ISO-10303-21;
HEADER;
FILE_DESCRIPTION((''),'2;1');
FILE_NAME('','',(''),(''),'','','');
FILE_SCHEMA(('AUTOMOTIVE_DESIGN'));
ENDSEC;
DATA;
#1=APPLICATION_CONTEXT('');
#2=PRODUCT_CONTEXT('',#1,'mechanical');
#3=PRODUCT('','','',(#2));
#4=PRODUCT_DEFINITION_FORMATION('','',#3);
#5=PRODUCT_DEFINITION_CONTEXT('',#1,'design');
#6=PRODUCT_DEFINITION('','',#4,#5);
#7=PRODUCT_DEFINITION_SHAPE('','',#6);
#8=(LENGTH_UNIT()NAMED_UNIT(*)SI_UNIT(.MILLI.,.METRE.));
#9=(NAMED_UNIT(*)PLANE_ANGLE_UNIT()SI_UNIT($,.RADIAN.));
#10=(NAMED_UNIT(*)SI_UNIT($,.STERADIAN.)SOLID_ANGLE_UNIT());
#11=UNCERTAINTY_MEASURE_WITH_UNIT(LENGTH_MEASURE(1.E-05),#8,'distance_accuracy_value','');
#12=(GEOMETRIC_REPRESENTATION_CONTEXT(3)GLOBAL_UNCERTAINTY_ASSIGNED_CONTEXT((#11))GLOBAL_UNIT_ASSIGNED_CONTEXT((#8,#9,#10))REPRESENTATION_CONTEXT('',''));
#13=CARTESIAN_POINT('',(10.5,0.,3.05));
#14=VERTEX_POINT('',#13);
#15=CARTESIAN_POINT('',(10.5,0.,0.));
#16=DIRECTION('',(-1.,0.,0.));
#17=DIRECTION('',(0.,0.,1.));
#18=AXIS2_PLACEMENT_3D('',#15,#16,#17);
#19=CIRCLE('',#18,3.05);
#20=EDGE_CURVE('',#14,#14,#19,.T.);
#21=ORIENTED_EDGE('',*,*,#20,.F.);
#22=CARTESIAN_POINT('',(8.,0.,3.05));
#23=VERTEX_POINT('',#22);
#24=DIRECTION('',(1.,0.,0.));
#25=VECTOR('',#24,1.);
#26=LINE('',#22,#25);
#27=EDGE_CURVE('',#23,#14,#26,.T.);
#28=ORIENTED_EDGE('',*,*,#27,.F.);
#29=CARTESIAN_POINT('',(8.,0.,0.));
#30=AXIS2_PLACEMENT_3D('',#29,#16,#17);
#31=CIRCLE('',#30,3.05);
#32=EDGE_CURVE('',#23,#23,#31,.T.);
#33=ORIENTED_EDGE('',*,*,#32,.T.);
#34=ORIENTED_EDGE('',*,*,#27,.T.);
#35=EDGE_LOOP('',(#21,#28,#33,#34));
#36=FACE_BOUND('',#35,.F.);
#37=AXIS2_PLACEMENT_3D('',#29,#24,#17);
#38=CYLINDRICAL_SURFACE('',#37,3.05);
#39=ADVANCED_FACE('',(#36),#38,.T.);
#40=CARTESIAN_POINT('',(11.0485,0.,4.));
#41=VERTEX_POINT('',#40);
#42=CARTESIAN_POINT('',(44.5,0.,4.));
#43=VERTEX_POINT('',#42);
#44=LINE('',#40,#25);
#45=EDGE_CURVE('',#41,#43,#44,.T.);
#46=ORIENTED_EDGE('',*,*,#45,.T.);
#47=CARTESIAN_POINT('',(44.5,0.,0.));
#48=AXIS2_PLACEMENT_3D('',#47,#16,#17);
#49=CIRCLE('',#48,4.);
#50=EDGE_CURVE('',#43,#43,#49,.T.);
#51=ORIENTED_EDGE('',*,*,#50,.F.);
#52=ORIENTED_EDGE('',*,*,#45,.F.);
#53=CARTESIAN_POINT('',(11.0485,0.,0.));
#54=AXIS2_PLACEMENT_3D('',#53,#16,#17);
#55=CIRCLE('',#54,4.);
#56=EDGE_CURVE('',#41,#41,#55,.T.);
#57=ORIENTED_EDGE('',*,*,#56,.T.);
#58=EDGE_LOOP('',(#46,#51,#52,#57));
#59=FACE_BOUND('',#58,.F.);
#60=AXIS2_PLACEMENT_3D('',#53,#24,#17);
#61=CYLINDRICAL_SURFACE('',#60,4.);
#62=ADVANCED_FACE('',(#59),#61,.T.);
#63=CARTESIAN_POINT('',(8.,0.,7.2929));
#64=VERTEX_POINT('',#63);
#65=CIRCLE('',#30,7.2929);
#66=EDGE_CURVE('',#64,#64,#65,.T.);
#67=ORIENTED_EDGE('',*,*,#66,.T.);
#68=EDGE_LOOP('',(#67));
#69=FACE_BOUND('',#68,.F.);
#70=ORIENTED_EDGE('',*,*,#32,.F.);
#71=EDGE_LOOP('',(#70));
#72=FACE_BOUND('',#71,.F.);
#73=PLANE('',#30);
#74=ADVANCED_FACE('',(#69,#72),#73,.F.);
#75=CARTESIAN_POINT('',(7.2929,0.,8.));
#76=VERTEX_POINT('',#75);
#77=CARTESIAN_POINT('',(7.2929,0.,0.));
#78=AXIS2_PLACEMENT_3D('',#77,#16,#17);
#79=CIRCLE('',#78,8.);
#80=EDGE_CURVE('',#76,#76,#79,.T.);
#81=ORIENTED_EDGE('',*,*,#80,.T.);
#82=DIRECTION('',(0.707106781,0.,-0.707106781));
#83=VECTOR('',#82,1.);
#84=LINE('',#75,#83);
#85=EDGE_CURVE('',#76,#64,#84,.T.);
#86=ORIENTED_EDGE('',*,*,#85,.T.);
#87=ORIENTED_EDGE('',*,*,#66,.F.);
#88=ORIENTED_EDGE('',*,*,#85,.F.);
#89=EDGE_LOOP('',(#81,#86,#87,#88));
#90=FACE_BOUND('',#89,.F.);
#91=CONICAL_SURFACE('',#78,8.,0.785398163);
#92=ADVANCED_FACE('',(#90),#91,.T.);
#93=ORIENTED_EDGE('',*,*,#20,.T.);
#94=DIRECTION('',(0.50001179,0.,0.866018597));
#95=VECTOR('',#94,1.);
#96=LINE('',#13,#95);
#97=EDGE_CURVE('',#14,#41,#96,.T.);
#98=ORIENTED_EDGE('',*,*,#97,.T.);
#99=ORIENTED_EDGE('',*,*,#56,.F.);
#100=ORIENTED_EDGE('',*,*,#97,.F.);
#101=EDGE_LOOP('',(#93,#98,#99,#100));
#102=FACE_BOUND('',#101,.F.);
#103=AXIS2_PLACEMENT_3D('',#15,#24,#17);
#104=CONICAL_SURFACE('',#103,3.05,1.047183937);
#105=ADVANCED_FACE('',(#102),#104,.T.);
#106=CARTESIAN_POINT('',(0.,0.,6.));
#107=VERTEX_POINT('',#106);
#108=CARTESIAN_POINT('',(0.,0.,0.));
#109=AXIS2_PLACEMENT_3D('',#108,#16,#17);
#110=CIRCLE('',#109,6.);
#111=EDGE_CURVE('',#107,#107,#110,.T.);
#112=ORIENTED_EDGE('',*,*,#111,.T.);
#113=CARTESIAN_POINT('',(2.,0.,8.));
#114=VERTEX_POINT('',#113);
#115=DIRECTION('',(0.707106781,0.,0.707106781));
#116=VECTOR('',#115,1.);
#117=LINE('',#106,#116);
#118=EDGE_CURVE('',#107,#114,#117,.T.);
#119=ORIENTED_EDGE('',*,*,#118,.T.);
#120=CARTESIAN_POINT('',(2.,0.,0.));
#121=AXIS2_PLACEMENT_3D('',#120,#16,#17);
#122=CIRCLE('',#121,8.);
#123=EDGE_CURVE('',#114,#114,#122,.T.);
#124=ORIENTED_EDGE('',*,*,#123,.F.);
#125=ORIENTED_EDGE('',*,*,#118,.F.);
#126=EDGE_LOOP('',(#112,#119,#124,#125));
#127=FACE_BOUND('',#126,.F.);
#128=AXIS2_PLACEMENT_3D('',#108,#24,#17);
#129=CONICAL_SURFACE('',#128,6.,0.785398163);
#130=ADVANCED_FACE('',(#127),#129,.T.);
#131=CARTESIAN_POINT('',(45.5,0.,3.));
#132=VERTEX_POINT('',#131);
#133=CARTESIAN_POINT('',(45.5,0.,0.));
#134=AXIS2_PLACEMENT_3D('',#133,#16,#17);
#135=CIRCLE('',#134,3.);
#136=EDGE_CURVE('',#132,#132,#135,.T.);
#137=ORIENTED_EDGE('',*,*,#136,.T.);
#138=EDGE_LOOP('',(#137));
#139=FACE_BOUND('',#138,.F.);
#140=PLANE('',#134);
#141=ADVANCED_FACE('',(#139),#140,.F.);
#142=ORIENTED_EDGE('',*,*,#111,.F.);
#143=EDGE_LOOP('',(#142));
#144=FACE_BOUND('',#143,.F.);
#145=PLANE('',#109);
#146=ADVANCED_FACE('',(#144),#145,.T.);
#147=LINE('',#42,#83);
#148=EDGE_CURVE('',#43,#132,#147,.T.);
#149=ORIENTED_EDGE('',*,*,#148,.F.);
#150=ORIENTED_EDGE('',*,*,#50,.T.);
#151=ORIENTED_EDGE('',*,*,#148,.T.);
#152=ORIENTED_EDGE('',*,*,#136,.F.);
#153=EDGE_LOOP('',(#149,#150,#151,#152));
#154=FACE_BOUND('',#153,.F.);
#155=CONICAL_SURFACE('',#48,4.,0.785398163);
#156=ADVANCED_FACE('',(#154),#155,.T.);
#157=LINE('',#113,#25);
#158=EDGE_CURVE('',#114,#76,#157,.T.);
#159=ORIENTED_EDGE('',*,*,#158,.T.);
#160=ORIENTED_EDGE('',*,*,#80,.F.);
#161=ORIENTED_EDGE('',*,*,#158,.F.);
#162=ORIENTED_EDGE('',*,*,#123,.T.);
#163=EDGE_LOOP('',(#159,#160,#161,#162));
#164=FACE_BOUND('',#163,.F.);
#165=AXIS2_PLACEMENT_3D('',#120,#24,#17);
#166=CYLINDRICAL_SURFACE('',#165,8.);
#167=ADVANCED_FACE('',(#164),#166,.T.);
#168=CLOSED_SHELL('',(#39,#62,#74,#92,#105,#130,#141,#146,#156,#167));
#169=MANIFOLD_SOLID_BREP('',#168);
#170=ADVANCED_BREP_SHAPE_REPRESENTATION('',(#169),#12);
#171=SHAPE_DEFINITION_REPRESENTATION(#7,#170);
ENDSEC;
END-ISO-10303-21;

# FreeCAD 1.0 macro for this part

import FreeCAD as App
import Part
import Sketcher

V = App.Vector
Q = App.Units.Quantity


def add_polygon(sketch, points):
    """Adds a closed chain of lines whose ends are joined by coincident constraints."""
    first, n = sketch.GeometryCount, len(points)
    for a, b in zip(points, points[1:] + points[:1]):
        sketch.addGeometry(Part.LineSegment(App.Vector(*a, 0), App.Vector(*b, 0)), False)
    for i in range(n):
        sketch.addConstraint(Sketcher.Constraint("Coincident", first + i, 2, first + (i + 1) % n, 1))

doc = App.newDocument("Part")
body = doc.addObject("PartDesign::Body", "Body")

sketch1 = doc.addObject("Sketcher::SketchObject", "Sketch")
body.addObject(sketch1)
sketch1.AttachmentSupport = (doc.XZ_Plane, [""])
sketch1.MapMode = "FlatFace"
add_polygon(sketch1, [(45.5, 3), (45.5, 0), (0, 0), (0, 6), (2, 8), (7.3, 8), (8, 7.3), (8, 3), (10.5, 3), (11, 4), (44.5, 4)])
sketch1.addConstraint(Sketcher.Constraint("Vertical", 0))
sketch1.addConstraint(Sketcher.Constraint("Horizontal", 1))
sketch1.addConstraint(Sketcher.Constraint("Vertical", 2))
sketch1.addConstraint(Sketcher.Constraint("Horizontal", 4))
sketch1.addConstraint(Sketcher.Constraint("Vertical", 6))
sketch1.addConstraint(Sketcher.Constraint("Horizontal", 7))
sketch1.addConstraint(Sketcher.Constraint("Horizontal", 9))
sketch1.addConstraint(Sketcher.Constraint("Coincident", 1, 2, -1, 1))
sketch1.addConstraint(Sketcher.Constraint("Perpendicular", 3, 5))
sketch1.addConstraint(Sketcher.Constraint("Parallel", 5, 10))
sketch1.addConstraint(Sketcher.Constraint("Angle", 3, Q("45 deg")))
sketch1.addConstraint(Sketcher.Constraint("Distance", 5, 1.0))
sketch1.addConstraint(Sketcher.Constraint("DistanceX", 1, 2, 1, 1, 45.5))
sketch1.addConstraint(Sketcher.Constraint("DistanceX", 7, 1, 7, 2, 2.5))
sketch1.addConstraint(Sketcher.Constraint("DistanceX", -1, 1, 3, 2, 2.0))
sketch1.addConstraint(Sketcher.Constraint("DistanceY", -1, 1, 3, 2, 8.0))
sketch1.addConstraint(Sketcher.Constraint("DistanceX", -1, 1, 5, 2, 8.0))
sketch1.addConstraint(Sketcher.Constraint("DistanceY", -1, 1, 8, 2, 4.0))
sketch1.addConstraint(Sketcher.Constraint("DistanceX", 9, 2, 0, 2, 1.0))
sketch1.addConstraint(Sketcher.Constraint("DistanceY", -1, 1, 6, 2, 3.05))
sketch1.addConstraint(Sketcher.Constraint("Angle", 8, Q("59.9992 deg")))
revolution = doc.addObject("PartDesign::Revolution", "Revolution")
body.addObject(revolution)
revolution.Profile = sketch1
revolution.ReferenceAxis = (sketch1, ["H_Axis"])
revolution.Angle = 360

doc.recompute()
